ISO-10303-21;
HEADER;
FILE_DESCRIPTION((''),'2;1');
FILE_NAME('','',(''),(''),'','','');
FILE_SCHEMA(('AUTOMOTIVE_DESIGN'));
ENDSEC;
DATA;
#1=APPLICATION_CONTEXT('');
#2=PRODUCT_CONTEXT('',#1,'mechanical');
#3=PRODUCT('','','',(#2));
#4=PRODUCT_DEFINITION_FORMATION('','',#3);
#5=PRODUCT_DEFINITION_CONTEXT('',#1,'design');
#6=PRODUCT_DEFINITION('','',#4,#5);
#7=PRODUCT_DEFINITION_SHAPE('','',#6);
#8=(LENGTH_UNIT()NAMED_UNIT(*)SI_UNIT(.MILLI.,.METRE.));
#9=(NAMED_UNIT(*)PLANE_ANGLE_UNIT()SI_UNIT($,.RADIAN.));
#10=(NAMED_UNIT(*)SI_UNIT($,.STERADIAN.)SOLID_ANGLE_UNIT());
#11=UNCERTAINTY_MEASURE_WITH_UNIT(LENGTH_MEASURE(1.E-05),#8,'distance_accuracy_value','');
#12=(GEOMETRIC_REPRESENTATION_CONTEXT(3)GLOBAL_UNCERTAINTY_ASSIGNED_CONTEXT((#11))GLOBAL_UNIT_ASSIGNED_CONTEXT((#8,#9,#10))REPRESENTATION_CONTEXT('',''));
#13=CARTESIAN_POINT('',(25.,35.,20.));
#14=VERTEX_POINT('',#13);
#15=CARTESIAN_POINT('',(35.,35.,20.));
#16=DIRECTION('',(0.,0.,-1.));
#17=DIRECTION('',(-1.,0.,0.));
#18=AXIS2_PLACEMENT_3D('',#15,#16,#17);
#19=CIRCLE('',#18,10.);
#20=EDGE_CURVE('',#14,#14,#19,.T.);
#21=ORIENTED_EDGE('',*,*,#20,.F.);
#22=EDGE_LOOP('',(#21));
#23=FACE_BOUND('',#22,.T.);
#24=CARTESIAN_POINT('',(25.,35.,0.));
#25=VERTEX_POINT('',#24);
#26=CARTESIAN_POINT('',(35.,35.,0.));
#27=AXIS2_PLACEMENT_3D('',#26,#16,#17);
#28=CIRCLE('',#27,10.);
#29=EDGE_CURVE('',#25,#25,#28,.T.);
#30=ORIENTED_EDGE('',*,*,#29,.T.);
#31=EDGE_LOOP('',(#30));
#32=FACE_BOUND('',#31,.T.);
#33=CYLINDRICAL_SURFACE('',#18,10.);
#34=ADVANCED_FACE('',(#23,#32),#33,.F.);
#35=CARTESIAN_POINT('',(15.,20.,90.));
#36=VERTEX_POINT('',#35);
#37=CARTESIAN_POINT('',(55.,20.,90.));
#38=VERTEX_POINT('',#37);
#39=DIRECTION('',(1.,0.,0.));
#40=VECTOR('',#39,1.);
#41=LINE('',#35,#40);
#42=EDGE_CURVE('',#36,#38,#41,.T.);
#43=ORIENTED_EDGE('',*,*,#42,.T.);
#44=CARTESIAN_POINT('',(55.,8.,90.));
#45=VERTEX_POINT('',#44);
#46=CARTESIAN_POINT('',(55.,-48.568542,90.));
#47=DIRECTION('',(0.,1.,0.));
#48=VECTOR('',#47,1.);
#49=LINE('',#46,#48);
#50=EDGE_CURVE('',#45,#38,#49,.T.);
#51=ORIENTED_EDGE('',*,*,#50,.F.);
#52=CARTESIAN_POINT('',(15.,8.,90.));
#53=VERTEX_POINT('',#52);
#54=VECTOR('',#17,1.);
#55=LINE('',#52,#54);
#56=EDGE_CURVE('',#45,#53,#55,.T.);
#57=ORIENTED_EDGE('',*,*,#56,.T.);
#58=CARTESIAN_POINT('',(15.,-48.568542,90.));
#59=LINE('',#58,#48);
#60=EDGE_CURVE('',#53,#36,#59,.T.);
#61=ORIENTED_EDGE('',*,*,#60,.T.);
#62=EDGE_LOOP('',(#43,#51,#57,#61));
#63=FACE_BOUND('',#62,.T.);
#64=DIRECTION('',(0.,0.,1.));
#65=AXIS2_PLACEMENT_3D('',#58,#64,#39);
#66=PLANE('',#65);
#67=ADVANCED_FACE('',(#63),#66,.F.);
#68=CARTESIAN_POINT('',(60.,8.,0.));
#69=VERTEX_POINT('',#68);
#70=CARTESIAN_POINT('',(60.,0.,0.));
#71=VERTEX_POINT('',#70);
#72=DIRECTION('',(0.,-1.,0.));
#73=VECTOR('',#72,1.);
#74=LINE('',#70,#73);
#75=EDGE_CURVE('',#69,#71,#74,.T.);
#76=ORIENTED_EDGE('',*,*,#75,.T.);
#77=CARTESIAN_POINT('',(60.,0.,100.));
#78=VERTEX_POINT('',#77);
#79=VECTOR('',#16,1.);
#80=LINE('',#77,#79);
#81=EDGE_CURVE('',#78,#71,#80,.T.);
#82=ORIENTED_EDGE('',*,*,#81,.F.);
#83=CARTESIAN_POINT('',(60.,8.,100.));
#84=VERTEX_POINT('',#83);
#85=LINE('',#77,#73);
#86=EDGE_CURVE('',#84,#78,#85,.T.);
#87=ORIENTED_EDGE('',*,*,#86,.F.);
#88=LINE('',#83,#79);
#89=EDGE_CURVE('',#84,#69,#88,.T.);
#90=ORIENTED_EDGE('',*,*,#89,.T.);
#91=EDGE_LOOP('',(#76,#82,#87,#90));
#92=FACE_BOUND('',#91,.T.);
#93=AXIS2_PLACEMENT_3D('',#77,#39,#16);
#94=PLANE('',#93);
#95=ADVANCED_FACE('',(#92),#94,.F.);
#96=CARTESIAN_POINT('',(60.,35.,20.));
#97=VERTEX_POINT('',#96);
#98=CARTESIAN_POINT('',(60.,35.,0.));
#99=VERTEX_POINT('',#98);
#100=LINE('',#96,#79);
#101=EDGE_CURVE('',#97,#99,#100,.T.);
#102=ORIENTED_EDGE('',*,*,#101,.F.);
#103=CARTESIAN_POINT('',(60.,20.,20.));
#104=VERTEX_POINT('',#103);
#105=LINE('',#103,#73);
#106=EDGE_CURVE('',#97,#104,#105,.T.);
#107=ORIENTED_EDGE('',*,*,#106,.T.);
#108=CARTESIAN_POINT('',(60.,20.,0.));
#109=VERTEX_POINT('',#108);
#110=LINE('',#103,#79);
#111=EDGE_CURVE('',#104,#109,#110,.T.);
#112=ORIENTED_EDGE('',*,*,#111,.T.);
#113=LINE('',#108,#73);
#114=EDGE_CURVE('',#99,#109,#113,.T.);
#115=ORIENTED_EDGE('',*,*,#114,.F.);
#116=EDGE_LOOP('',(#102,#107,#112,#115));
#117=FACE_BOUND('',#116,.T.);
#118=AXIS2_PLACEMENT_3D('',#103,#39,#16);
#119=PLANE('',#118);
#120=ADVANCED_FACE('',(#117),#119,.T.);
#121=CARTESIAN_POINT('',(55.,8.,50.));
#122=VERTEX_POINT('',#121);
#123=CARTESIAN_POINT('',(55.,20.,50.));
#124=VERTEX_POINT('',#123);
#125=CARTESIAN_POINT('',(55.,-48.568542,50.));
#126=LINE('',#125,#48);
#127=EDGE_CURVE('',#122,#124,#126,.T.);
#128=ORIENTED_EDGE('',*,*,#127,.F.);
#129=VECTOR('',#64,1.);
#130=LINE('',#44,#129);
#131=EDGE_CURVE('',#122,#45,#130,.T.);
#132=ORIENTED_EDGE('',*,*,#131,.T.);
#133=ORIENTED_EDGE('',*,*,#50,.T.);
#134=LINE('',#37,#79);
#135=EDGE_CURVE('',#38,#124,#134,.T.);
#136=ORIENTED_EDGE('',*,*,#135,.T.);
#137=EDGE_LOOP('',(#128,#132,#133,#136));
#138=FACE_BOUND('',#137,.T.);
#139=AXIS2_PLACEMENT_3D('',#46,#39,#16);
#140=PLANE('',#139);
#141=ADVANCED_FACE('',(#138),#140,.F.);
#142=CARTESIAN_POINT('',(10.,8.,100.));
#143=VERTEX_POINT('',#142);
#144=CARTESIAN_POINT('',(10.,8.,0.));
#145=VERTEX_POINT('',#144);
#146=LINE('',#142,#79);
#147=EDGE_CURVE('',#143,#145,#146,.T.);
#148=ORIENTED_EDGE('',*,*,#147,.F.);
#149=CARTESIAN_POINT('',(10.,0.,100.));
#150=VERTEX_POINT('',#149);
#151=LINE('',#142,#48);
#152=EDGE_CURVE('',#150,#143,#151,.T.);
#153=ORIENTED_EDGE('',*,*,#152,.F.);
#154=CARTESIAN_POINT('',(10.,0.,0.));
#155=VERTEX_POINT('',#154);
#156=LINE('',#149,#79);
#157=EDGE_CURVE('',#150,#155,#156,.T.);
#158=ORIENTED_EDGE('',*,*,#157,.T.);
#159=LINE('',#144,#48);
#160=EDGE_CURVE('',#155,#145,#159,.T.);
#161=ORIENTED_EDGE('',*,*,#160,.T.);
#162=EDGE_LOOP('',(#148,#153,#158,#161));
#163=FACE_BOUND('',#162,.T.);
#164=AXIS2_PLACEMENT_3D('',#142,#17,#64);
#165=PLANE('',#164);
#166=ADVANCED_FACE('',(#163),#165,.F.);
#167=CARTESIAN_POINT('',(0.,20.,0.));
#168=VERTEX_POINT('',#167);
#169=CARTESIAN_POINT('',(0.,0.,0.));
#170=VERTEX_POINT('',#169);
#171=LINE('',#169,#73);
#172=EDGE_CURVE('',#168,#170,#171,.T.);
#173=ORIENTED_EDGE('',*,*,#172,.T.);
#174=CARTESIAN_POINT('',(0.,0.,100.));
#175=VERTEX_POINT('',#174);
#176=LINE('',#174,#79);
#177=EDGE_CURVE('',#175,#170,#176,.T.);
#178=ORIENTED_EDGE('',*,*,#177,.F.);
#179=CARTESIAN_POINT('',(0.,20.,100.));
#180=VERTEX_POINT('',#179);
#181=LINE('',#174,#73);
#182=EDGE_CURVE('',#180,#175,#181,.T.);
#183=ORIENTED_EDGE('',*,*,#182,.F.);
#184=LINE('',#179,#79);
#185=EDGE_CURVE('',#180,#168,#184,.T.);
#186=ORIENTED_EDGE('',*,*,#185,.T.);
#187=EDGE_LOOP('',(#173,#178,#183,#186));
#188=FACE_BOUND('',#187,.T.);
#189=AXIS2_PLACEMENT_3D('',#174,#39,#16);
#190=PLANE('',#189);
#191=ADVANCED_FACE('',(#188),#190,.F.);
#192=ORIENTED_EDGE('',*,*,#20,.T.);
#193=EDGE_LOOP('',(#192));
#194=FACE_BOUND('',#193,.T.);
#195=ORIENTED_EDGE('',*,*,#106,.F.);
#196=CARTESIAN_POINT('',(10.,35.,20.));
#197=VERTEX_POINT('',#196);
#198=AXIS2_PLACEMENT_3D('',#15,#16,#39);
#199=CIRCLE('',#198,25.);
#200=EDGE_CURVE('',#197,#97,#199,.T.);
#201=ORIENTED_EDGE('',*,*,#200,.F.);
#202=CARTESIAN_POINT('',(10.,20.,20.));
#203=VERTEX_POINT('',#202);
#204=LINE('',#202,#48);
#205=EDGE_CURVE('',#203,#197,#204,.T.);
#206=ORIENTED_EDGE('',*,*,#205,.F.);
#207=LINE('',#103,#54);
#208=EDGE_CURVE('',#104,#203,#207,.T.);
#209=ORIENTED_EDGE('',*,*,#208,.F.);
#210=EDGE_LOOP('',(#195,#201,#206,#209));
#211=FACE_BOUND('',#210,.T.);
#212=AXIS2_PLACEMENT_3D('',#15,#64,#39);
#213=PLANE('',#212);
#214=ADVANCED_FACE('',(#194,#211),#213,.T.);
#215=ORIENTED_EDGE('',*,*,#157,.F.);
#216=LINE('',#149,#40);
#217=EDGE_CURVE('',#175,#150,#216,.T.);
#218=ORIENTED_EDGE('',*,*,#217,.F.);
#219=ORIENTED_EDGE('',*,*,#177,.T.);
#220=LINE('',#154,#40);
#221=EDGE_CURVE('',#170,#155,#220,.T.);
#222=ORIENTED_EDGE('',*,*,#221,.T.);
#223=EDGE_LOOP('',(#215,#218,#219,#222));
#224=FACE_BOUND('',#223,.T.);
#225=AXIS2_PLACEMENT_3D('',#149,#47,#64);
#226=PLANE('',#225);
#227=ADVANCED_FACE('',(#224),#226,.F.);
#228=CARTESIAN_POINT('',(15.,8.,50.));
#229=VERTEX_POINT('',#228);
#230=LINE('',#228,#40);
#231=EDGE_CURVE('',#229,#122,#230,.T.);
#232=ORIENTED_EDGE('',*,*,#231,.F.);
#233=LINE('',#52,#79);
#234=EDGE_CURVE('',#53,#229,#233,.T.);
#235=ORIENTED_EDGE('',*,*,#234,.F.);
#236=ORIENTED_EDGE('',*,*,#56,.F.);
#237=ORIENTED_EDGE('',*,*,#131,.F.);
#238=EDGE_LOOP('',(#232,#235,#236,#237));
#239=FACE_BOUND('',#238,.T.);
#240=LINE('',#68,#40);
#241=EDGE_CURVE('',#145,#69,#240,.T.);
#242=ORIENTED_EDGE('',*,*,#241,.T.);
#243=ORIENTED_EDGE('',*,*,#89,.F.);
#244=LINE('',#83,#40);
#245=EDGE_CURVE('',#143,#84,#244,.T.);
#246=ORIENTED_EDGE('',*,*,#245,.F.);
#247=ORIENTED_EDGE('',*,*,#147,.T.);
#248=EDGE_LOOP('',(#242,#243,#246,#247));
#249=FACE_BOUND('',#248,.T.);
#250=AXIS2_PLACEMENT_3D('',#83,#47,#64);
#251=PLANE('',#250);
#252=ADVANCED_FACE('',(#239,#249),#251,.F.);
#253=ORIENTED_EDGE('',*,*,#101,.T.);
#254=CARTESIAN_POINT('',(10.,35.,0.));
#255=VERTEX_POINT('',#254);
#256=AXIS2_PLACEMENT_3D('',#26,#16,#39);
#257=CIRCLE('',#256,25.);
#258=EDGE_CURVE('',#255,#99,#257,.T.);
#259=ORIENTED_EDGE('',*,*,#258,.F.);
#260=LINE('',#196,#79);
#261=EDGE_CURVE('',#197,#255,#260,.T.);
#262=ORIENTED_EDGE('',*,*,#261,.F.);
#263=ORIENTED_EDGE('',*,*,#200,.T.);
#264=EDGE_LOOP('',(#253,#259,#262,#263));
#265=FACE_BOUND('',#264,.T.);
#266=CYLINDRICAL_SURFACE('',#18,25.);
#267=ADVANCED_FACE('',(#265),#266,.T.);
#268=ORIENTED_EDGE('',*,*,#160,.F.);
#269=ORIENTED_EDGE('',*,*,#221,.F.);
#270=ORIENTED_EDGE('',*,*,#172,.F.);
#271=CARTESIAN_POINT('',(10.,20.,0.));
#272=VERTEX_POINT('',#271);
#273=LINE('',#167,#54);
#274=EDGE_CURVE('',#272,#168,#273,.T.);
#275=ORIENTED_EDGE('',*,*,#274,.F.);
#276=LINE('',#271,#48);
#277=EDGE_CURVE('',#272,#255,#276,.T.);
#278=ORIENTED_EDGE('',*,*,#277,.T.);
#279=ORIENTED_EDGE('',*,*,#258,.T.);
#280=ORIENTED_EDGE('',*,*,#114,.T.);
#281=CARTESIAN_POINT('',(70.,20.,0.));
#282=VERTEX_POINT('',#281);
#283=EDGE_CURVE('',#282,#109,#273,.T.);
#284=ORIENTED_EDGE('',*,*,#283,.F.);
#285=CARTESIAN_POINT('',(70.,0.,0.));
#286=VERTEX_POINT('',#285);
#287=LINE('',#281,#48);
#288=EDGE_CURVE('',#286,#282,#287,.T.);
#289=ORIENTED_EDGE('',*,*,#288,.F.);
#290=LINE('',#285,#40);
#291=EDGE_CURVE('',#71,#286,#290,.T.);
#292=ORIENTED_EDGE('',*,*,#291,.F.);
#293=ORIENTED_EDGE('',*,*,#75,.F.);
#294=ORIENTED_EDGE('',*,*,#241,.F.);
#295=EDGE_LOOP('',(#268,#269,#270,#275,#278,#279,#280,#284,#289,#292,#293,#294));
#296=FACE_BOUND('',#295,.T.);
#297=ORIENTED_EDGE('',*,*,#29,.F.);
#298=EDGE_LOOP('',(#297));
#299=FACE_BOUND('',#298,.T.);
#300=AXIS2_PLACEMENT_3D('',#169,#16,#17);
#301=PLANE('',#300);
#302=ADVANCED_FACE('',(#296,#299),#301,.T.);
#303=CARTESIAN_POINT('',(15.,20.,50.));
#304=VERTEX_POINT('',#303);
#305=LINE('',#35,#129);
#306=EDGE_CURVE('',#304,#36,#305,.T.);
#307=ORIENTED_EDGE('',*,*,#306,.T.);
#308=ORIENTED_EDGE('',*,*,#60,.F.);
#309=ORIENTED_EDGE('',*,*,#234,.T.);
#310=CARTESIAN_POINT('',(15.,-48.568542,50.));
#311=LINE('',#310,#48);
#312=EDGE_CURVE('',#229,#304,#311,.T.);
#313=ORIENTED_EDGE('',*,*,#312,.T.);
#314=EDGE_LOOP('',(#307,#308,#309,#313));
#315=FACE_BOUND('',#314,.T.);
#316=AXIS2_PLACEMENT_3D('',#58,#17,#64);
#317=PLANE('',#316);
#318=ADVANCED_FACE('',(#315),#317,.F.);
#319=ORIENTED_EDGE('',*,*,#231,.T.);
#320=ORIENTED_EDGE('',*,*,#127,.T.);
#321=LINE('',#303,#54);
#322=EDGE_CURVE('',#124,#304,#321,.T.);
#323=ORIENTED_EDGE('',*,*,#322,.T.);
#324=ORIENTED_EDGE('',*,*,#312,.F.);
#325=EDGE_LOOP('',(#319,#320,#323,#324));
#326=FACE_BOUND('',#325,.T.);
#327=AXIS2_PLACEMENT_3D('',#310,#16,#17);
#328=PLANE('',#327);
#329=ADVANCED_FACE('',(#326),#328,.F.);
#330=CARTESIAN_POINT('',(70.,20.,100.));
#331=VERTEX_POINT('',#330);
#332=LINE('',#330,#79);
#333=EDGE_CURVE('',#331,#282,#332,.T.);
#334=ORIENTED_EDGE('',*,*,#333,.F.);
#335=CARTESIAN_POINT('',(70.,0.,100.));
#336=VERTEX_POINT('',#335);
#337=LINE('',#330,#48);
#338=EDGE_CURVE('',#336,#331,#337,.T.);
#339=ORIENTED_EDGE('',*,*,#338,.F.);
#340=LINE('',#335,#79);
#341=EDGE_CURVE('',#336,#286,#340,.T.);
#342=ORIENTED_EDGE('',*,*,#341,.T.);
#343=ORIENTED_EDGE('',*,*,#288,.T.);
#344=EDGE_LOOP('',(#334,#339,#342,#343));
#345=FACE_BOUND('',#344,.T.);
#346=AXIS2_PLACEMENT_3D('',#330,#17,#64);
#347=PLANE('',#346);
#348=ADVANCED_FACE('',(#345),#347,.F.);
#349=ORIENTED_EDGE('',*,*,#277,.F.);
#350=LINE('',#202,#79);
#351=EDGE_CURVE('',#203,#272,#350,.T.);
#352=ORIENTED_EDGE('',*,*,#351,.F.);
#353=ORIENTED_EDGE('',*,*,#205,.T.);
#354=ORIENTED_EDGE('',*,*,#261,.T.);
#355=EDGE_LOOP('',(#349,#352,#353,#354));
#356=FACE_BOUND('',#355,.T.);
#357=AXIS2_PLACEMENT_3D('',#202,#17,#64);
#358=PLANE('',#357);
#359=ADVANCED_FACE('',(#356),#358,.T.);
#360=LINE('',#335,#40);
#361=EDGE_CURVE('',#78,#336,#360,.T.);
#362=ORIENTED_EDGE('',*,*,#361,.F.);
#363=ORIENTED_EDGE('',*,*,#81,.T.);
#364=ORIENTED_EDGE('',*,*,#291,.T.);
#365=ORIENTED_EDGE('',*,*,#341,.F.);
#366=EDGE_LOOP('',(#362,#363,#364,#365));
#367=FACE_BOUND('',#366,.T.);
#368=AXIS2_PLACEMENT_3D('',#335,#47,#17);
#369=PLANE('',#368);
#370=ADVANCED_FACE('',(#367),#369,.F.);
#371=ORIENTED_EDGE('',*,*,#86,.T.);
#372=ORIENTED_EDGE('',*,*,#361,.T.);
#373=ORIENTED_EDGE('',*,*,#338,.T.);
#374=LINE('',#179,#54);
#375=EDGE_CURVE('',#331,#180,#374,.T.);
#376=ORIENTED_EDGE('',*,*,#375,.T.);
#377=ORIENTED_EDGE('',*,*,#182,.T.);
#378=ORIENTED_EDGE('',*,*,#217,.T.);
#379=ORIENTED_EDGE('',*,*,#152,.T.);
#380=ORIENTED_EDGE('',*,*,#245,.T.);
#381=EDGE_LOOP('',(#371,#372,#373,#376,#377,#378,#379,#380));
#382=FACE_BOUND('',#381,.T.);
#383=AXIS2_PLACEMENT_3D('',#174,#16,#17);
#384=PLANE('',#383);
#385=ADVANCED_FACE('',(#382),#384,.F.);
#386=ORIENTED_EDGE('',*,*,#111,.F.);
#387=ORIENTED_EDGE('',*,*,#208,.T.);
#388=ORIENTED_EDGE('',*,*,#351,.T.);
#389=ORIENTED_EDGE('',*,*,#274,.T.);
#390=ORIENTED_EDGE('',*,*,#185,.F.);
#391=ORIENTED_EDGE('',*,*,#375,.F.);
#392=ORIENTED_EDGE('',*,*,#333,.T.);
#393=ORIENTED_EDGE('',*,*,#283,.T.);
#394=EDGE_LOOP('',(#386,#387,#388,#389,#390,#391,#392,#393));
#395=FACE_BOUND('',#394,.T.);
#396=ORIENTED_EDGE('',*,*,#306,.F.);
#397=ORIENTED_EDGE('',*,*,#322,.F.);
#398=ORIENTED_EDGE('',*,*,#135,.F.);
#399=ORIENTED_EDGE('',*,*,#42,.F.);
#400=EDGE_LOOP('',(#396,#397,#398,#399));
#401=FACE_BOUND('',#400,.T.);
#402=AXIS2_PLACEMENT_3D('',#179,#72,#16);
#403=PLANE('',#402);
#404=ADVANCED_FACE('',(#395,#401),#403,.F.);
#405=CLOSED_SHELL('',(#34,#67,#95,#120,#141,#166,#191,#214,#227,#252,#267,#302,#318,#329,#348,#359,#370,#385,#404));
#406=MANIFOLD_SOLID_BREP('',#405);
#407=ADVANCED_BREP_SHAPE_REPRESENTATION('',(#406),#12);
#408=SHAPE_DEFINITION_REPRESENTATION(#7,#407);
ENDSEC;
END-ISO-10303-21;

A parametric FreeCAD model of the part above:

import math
import FreeCAD as App
import Part
import Sketcher
from FreeCAD import Vector


def add_polygon(sketch, points):
    """Adds a closed chain of lines whose ends are joined by coincident constraints."""
    first, n = sketch.GeometryCount, len(points)
    for a, b in zip(points, points[1:] + points[:1]):
        sketch.addGeometry(Part.LineSegment(App.Vector(*a, 0), App.Vector(*b, 0)), False)
    for i in range(n):
        sketch.addConstraint(Sketcher.Constraint("Coincident", first + i, 2, first + (i + 1) % n, 1))

doc = App.newDocument("Part")
body = doc.addObject("PartDesign::Body", "Body")

sketch1 = body.newObject("Sketcher::SketchObject", "Sketch")
sketch1.AttachmentSupport = (doc.getObject("XY_Plane"), [""])
sketch1.MapMode = "FlatFace"
add_polygon(sketch1, [(0, 20), (0, 0), (10, 0), (10, 8), (60, 8), (60, 0), (70, 0), (70, 20)])
sketch1.addConstraint([
    Sketcher.Constraint("Vertical", 0),
    Sketcher.Constraint("Horizontal", 1),
    Sketcher.Constraint("Vertical", 2),
    Sketcher.Constraint("Horizontal", 3),
    Sketcher.Constraint("Vertical", 4),
    Sketcher.Constraint("Horizontal", 5),
    Sketcher.Constraint("Vertical", 6),
    Sketcher.Constraint("Horizontal", 7),
    Sketcher.Constraint("Coincident", 0, 2, -1, 1),
    Sketcher.Constraint("PointOnObject", 4, 2, -1),
    Sketcher.Constraint("Equal", 1, 5),
    Sketcher.Constraint("DistanceX", 1, 1, 1, 2, 10.0),
    Sketcher.Constraint("DistanceX", 3, 1, 3, 2, 50.0),
    Sketcher.Constraint("DistanceY", 0, 2, 0, 1, 20.0),
    Sketcher.Constraint("DistanceY", 2, 1, 2, 2, 8.0),
])
pad1 = body.newObject("PartDesign::Pad", "Pad")
pad1.Profile = sketch1
pad1.Length = 100

sketch2 = body.newObject("Sketcher::SketchObject", "Sketch001")
sketch2.AttachmentSupport = (doc.getObject("XY_Plane"), [""])
sketch2.MapMode = "FlatFace"
sketch2.addGeometry([
    Part.LineSegment(Vector(60, 35, 0), Vector(60, 20, 0)),
    Part.LineSegment(Vector(60, 20, 0), Vector(10, 20, 0)),
    Part.LineSegment(Vector(10, 20, 0), Vector(10, 35, 0)),
    Part.ArcOfCircle(Part.Circle(Vector(35, 35, 0), Vector(0, 0, 1), 25), math.radians(0), math.radians(180)),
    Part.Circle(Vector(35, 35, 0), Vector(0, 0, 1), 10),
], False)
sketch2.addConstraint([
    Sketcher.Constraint("Coincident", 0, 2, 1, 1),
    Sketcher.Constraint("Coincident", 1, 2, 2, 1),
    Sketcher.Constraint("Tangent", 2, 2, 3, 2),
    Sketcher.Constraint("Tangent", 3, 1, 0, 1),
    Sketcher.Constraint("Vertical", 0),
    Sketcher.Constraint("Horizontal", 1),
    Sketcher.Constraint("Vertical", 2),
    Sketcher.Constraint("Coincident", 4, 3, 3, 3),
    Sketcher.Constraint("Diameter", 4, 20.0),
    Sketcher.Constraint("Radius", 3, 25.0),
    Sketcher.Constraint("DistanceY", 0, 2, 0, 1, 15.0),
    Sketcher.Constraint("DistanceX", -1, 1, 3, 3, 35.0),
    Sketcher.Constraint("DistanceY", -1, 1, 3, 3, 35.0),
])
pad2 = body.newObject("PartDesign::Pad", "Pad001")
pad2.Profile = sketch2
pad2.Length = 20

sketch3 = body.newObject("Sketcher::SketchObject", "Sketch002")
sketch3.AttachmentSupport = (doc.getObject("XZ_Plane"), [""])
sketch3.MapMode = "FlatFace"
sketch3.AttachmentOffset = App.Placement(Vector(0, 0, -20), App.Rotation())
add_polygon(sketch3, [(15, 50), (15, 90), (55, 90), (55, 50)])
sketch3.addConstraint([
    Sketcher.Constraint("Vertical", 0),
    Sketcher.Constraint("Horizontal", 1),
    Sketcher.Constraint("Vertical", 2),
    Sketcher.Constraint("Horizontal", 3),
    Sketcher.Constraint("Equal", 3, 0),
    Sketcher.Constraint("DistanceX", 1, 1, 1, 2, 40.0),
    Sketcher.Constraint("DistanceX", -1, 1, 0, 2, 15.0),
    Sketcher.Constraint("DistanceY", -1, 1, 0, 2, 90.0),
])
pocket1 = body.newObject("PartDesign::Pocket", "Pocket")
pocket1.Profile = sketch3
pocket1.Length = 12
pocket1.Reversed = True

doc.recompute()
